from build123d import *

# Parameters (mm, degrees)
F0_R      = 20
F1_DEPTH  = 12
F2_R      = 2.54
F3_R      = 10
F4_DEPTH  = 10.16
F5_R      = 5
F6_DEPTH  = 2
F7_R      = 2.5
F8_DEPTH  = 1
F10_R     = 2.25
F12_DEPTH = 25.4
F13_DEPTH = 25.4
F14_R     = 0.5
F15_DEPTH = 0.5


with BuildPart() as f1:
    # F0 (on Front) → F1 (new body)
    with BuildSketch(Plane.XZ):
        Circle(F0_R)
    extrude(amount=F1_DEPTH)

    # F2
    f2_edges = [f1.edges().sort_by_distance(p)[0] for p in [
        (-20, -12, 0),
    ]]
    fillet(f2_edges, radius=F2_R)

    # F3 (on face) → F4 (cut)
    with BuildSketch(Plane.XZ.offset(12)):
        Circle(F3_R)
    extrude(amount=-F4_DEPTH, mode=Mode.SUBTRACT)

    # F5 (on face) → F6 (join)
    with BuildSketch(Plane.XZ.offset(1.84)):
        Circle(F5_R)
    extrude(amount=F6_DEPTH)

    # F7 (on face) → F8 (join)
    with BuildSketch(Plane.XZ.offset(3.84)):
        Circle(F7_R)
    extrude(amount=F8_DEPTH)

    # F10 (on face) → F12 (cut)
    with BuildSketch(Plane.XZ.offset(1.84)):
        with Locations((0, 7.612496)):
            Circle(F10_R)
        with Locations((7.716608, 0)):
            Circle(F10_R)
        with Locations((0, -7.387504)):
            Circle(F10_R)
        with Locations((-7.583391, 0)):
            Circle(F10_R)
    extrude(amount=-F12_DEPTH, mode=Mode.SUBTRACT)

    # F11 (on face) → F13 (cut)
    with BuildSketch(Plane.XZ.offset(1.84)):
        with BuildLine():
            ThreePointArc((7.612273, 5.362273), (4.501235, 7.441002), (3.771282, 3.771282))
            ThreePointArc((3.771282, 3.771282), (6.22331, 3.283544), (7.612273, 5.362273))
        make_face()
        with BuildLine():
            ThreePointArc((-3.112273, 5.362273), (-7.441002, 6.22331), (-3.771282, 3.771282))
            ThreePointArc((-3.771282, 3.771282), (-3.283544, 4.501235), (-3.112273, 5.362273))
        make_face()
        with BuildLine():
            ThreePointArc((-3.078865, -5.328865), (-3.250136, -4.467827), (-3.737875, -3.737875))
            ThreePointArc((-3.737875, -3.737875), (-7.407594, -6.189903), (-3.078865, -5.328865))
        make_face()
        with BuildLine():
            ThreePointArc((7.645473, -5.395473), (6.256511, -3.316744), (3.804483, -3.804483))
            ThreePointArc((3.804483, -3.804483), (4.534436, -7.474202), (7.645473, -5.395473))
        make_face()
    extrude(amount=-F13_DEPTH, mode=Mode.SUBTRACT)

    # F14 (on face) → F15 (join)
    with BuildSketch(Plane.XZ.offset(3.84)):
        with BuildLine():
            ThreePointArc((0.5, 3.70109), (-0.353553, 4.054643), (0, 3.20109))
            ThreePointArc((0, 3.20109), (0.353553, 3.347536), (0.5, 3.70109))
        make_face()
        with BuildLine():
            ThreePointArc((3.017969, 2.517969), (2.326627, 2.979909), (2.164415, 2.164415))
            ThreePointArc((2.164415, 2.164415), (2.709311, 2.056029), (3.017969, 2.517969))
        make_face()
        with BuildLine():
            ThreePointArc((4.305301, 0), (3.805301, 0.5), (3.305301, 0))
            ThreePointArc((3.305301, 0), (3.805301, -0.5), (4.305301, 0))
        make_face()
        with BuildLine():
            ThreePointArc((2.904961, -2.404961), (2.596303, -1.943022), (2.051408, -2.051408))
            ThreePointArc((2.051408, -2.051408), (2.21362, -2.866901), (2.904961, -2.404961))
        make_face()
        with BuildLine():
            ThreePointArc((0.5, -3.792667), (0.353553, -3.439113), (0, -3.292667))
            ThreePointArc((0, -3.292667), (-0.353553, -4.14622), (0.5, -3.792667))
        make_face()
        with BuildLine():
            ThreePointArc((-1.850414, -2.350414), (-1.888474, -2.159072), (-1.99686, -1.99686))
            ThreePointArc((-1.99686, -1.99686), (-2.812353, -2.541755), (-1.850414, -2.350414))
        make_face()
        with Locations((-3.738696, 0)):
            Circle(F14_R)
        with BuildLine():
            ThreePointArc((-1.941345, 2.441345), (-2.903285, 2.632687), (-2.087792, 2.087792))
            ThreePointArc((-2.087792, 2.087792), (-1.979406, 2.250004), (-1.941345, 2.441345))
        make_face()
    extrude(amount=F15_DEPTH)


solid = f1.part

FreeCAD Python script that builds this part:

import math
import FreeCAD as App
import Part
import Sketcher
from FreeCAD import Vector
Q = App.Units.Quantity


def edges_at(feature, points):
    """Names of the edges that pass closest to the given points."""
    edges = feature.Shape.Edges
    near = lambda p: min(range(len(edges)), key=lambda i: edges[i].distToShape(Part.Vertex(*p))[0])
    return sorted({f"Edge{near(p) + 1}" for p in points})

doc = App.newDocument("Part")
body = doc.addObject("PartDesign::Body", "Body")

# Sketch on XZ plane
sketch1 = body.newObject("Sketcher::SketchObject", "Sketch")
sketch1.AttachmentSupport = (doc.getObject("XZ_Plane"), [""])
sketch1.MapMode = "FlatFace"
sketch1.addGeometry(Part.Circle(Vector(0, 0, 0), Vector(0, 0, 1), 20), False)
sketch1.addConstraint([
    Sketcher.Constraint("Coincident", 0, 3, -1, 1),
    Sketcher.Constraint("Diameter", 0, Q("40 mm")),
])
pad1 = body.newObject("PartDesign::Pad", "Pad")
pad1.Profile = sketch1
pad1.Length = 12
doc.recompute()

fillet = body.newObject("PartDesign::Fillet", "Fillet")
fillet.Base = (pad1, edges_at(pad1, [(-20, -12, 0)]))
fillet.Radius = 2.54

# Sketch on XZ plane
sketch2 = body.newObject("Sketcher::SketchObject", "Sketch001")
sketch2.AttachmentSupport = (doc.getObject("XZ_Plane"), [""])
sketch2.MapMode = "FlatFace"
sketch2.AttachmentOffset = App.Placement(Vector(0, 0, 12), App.Rotation())
sketch2.addGeometry(Part.Circle(Vector(0, 0, 0), Vector(0, 0, 1), 10), False)
sketch2.addConstraint([
    Sketcher.Constraint("Coincident", 0, 3, -1, 1),
    Sketcher.Constraint("Diameter", 0, Q("20 mm")),
])
pocket1 = body.newObject("PartDesign::Pocket", "Pocket")
pocket1.Profile = sketch2
pocket1.Length = 10.16

# Sketch on XZ plane
sketch3 = body.newObject("Sketcher::SketchObject", "Sketch002")
sketch3.AttachmentSupport = (doc.getObject("XZ_Plane"), [""])
sketch3.MapMode = "FlatFace"
sketch3.AttachmentOffset = App.Placement(Vector(0, 0, 1.84), App.Rotation())
sketch3.addGeometry(Part.Circle(Vector(0, 0, 0), Vector(0, 0, 1), 5), False)
sketch3.addConstraint([
    Sketcher.Constraint("Coincident", 0, 3, -1, 1),
    Sketcher.Constraint("Diameter", 0, Q("10 mm")),
])
pad2 = body.newObject("PartDesign::Pad", "Pad001")
pad2.Profile = sketch3
pad2.Length = 2

# Sketch on XZ plane
sketch4 = body.newObject("Sketcher::SketchObject", "Sketch003")
sketch4.AttachmentSupport = (doc.getObject("XZ_Plane"), [""])
sketch4.MapMode = "FlatFace"
sketch4.AttachmentOffset = App.Placement(Vector(0, 0, 3.84), App.Rotation())
sketch4.addGeometry(Part.Circle(Vector(0, 0, 0), Vector(0, 0, 1), 2.5), False)
sketch4.addConstraint([
    Sketcher.Constraint("Coincident", 0, 3, -1, 1),
    Sketcher.Constraint("Diameter", 0, Q("5 mm")),
])
pad3 = body.newObject("PartDesign::Pad", "Pad002")
pad3.Profile = sketch4
pad3.Length = 1

# Sketch on XZ plane
sketch5 = body.newObject("Sketcher::SketchObject", "Sketch004")
sketch5.AttachmentSupport = (doc.getObject("XZ_Plane"), [""])
sketch5.MapMode = "FlatFace"
sketch5.AttachmentOffset = App.Placement(Vector(0, 0, 1.84), App.Rotation())
sketch5.addGeometry([
    Part.Circle(Vector(0, 7.6, 0), Vector(0, 0, 1), 2.2),
    Part.Circle(Vector(7.7, 0, 0), Vector(0, 0, 1), 2.2),
    Part.Circle(Vector(0, -7.4, 0), Vector(0, 0, 1), 2.2),
    Part.Circle(Vector(-7.6, 0, 0), Vector(0, 0, 1), 2.2),
], False)
sketch5.addConstraint([
    Sketcher.Constraint("Equal", 0, 1),
    Sketcher.Constraint("Equal", 1, 2),
    Sketcher.Constraint("Equal", 2, 3),
    Sketcher.Constraint("PointOnObject", 0, 3, -2),
    Sketcher.Constraint("PointOnObject", 1, 3, -1),
    Sketcher.Constraint("PointOnObject", 2, 3, -2),
    Sketcher.Constraint("PointOnObject", 3, 3, -1),
    Sketcher.Constraint("Diameter", 0, Q("4.5 mm")),
    Sketcher.Constraint("DistanceY", 2, 3, 0, 3, Q("15 mm")),
    Sketcher.Constraint("DistanceX", 3, 3, 1, 3, Q("15.299999 mm")),
    Sketcher.Constraint("DistanceX", 3, 3, -1, 1, Q("7.583391 mm")),
    Sketcher.Constraint("DistanceY", -1, 1, 0, 3, Q("7.612496 mm")),
])
pocket2 = body.newObject("PartDesign::Pocket", "Pocket001")
pocket2.Profile = sketch5
pocket2.Length = 25.4

# Sketch on XZ plane
sketch6 = body.newObject("Sketcher::SketchObject", "Sketch005")
sketch6.AttachmentSupport = (doc.getObject("XZ_Plane"), [""])
sketch6.MapMode = "FlatFace"
sketch6.AttachmentOffset = App.Placement(Vector(0, 0, 1.84), App.Rotation())
sketch6.addGeometry([
    Part.ArcOfCircle(Part.Circle(Vector(5.4, 5.4, 0), Vector(0, 0, 1), 2.3), math.radians(0), math.radians(225)),  # 0
    Part.ArcOfCircle(Part.Circle(Vector(5.4, 5.4, 0), Vector(0, 0, 1), 2.3), math.radians(-135), math.radians(0)),  # 1
    Part.ArcOfCircle(Part.Circle(Vector(-5.4, 5.4, 0), Vector(0, 0, 1), 2.3), math.radians(0), math.radians(315)),  # 2
    Part.ArcOfCircle(Part.Circle(Vector(-5.4, 5.4, 0), Vector(0, 0, 1), 2.3), math.radians(-45), math.radians(0)),  # 3
    Part.ArcOfCircle(Part.Circle(Vector(-5.3, -5.3, 0), Vector(0, 0, 1), 2.2), math.radians(0), math.radians(45)),  # 4
    Part.ArcOfCircle(Part.Circle(Vector(-5.3, -5.3, 0), Vector(0, 0, 1), 2.2), math.radians(45), math.radians(360)),  # 5
    Part.ArcOfCircle(Part.Circle(Vector(5.4, -5.4, 0), Vector(0, 0, 1), 2.2), math.radians(0), math.radians(135)),  # 6
    Part.ArcOfCircle(Part.Circle(Vector(5.4, -5.4, 0), Vector(0, 0, 1), 2.2), math.radians(135), math.radians(360)),  # 7
], False)
sketch6.addConstraint([
    Sketcher.Constraint("Tangent", 0, 1, 1, 2),
    Sketcher.Constraint("Coincident", 1, 1, 0, 2),
    Sketcher.Constraint("Tangent", 2, 1, 3, 2),
    Sketcher.Constraint("Coincident", 3, 1, 2, 2),
    Sketcher.Constraint("Tangent", 4, 1, 5, 2),
    Sketcher.Constraint("Coincident", 5, 1, 4, 2),
    Sketcher.Constraint("Tangent", 6, 1, 7, 2),
    Sketcher.Constraint("Coincident", 7, 1, 6, 2),
    Sketcher.Constraint("Equal", 1, 2),
    Sketcher.Constraint("Equal", 2, 5),
    Sketcher.Constraint("Equal", 5, 6),
    Sketcher.Constraint("Symmetric", 0, 3, 2, 3, -2),
    Sketcher.Constraint("Horizontal", 3, 3, 0, 1),
    Sketcher.Constraint("Horizontal", 0, 1, 2, 1),
    Sketcher.Constraint("Horizontal", 1, 1, 3, 1),
    Sketcher.Constraint("Horizontal", 5, 3, 4, 1),
    Sketcher.Constraint("Horizontal", 7, 3, 6, 1),
    Sketcher.Constraint("Radius", 0, Q("2.25 mm")),
    Sketcher.Constraint("DistanceX", 0, 3, 6, 3, Q("0.033201 mm")),
    Sketcher.Constraint("DistanceY", -1, 1, 2, 3, Q("5.362272 mm")),
    Sketcher.Constraint("DistanceX", 3, 3, -1, 1, Q("5.362278 mm")),
    Sketcher.Constraint("DistanceX", 4, 3, -1, 1, Q("5.328861 mm")),
    Sketcher.Constraint("DistanceX", -1, 1, 1, 1, Q("3.771282 mm")),
    Sketcher.Constraint("DistanceY", 5, 3, 3, 3, Q("10.691139 mm")),
    Sketcher.Constraint("DistanceY", 6, 3, 4, 3, Q("0.066609 mm")),
    Sketcher.Constraint("DistanceX", 5, 1, 4, 1, Q("0.65901 mm")),
    Sketcher.Constraint("DistanceX", 7, 1, 6, 3, Q("1.59099 mm")),
])
pocket3 = body.newObject("PartDesign::Pocket", "Pocket002")
pocket3.Profile = sketch6
pocket3.Length = 25.4

# Sketch on XZ plane
sketch7 = body.newObject("Sketcher::SketchObject", "Sketch006")
sketch7.AttachmentSupport = (doc.getObject("XZ_Plane"), [""])
sketch7.MapMode = "FlatFace"
sketch7.AttachmentOffset = App.Placement(Vector(0, 0, 3.84), App.Rotation())
sketch7.addGeometry([
    Part.ArcOfCircle(Part.Circle(Vector(0, 3.7, 0), Vector(0, 0, 1), 0.5), math.radians(0), math.radians(270)),  # 0
    Part.ArcOfCircle(Part.Circle(Vector(0, 3.7, 0), Vector(0, 0, 1), 0.5), math.radians(-90), math.radians(0)),  # 1
    Part.ArcOfCircle(Part.Circle(Vector(2.52, 2.52, 0), Vector(0, 0, 1), 0.5), math.radians(0), math.radians(225)),  # 2
    Part.ArcOfCircle(Part.Circle(Vector(2.52, 2.52, 0), Vector(0, 0, 1), 0.5), math.radians(-135), math.radians(0)),  # 3
    Part.Circle(Vector(3.81, 0, 0), Vector(0, 0, 1), 0.5),  # 4
    Part.ArcOfCircle(Part.Circle(Vector(2.4, -2.4, 0), Vector(0, 0, 1), 0.5), math.radians(0), math.radians(135)),  # 5
    Part.ArcOfCircle(Part.Circle(Vector(2.4, -2.4, 0), Vector(0, 0, 1), 0.5), math.radians(135), math.radians(360)),  # 6
    Part.ArcOfCircle(Part.Circle(Vector(0, -3.79, 0), Vector(0, 0, 1), 0.5), math.radians(0), math.radians(90)),  # 7
    Part.ArcOfCircle(Part.Circle(Vector(0, -3.79, 0), Vector(0, 0, 1), 0.5), math.radians(90), math.radians(360)),  # 8
    Part.ArcOfCircle(Part.Circle(Vector(-2.35, -2.35, 0), Vector(0, 0, 1), 0.5), math.radians(0), math.radians(45)),  # 9
    Part.ArcOfCircle(Part.Circle(Vector(-2.35, -2.35, 0), Vector(0, 0, 1), 0.5), math.radians(45), math.radians(360)),  # 10
    Part.Circle(Vector(-3.74, 0, 0), Vector(0, 0, 1), 0.5),  # 11
    Part.ArcOfCircle(Part.Circle(Vector(-2.44, 2.44, 0), Vector(0, 0, 1), 0.5), math.radians(0), math.radians(315)),  # 12
    Part.ArcOfCircle(Part.Circle(Vector(-2.44, 2.44, 0), Vector(0, 0, 1), 0.5), math.radians(-45), math.radians(0)),  # 13
], False)
sketch7.addConstraint([
    Sketcher.Constraint("Tangent", 0, 1, 1, 2),
    Sketcher.Constraint("Coincident", 1, 1, 0, 2),
    Sketcher.Constraint("Tangent", 2, 1, 3, 2),
    Sketcher.Constraint("Coincident", 3, 1, 2, 2),
    Sketcher.Constraint("Tangent", 5, 1, 6, 2),
    Sketcher.Constraint("Coincident", 6, 1, 5, 2),
    Sketcher.Constraint("Tangent", 7, 1, 8, 2),
    Sketcher.Constraint("Coincident", 8, 1, 7, 2),
    Sketcher.Constraint("Tangent", 9, 1, 10, 2),
    Sketcher.Constraint("Coincident", 10, 1, 9, 2),
    Sketcher.Constraint("Coincident", 12, 1, 13, 2),
    Sketcher.Constraint("Coincident", 13, 1, 12, 2),
    Sketcher.Constraint("Equal", 1, 2),
    Sketcher.Constraint("Equal", 3, 4),
    Sketcher.Constraint("Equal", 4, 5),
    Sketcher.Constraint("Equal", 6, 7),
    Sketcher.Constraint("Equal", 8, 9),
    Sketcher.Constraint("Equal", 10, 11),
    Sketcher.Constraint("Equal", 11, 12),
    Sketcher.Constraint("PointOnObject", 0, 3, -2),
    Sketcher.Constraint("PointOnObject", 4, 3, -1),
    Sketcher.Constraint("PointOnObject", 7, 3, -2),
    Sketcher.Constraint("PointOnObject", 11, 3, -1),
    Sketcher.Constraint("PointOnObject", 1, 1, -2),
    Sketcher.Constraint("PointOnObject", 8, 1, -2),
    Sketcher.Constraint("Horizontal", 1, 3, 0, 1),
    Sketcher.Constraint("Horizontal", 3, 3, 2, 1),
    Sketcher.Constraint("Horizontal", 6, 3, 5, 1),
    Sketcher.Constraint("Horizontal", 8, 3, 7, 1),
    Sketcher.Constraint("Horizontal", 10, 3, 9, 1),
    Sketcher.Constraint("Diameter", 4, Q("1 mm")),
    Sketcher.Constraint("Radius", 13, Q("0.500008 mm")),
    Sketcher.Constraint("DistanceX", -1, 1, 4, 3, Q("3.805301 mm")),
    Sketcher.Constraint("DistanceY", 13, 1, 1, 1, Q("1.113298 mm")),
    Sketcher.Constraint("DistanceY", -1, 1, 0, 3, Q("3.70109 mm")),
    Sketcher.Constraint("DistanceX", -1, 1, 2, 3, Q("2.517969 mm")),
    Sketcher.Constraint("DistanceY", -1, 1, 2, 3, Q("2.517969 mm")),
    Sketcher.Constraint("DistanceX", -1, 1, 5, 3, Q("2.404961 mm")),
    Sketcher.Constraint("DistanceY", 5, 3, -1, 1, Q("2.404962 mm")),
    Sketcher.Constraint("DistanceY", -1, 1, 13, 3, Q("2.441349 mm")),
    Sketcher.Constraint("DistanceX", -1, 1, 6, 1, Q("2.051408 mm")),
    Sketcher.Constraint("DistanceX", 10, 1, -1, 1, Q("1.99686 mm")),
    Sketcher.Constraint("DistanceY", 10, 1, -1, 1, Q("1.99686 mm")),
    Sketcher.Constraint("DistanceX", 13, 1, -1, 1, Q("2.087792 mm")),
    Sketcher.Constraint("DistanceY", 5, 3, 9, 3, Q("0.054548 mm")),
    Sketcher.Constraint("DistanceX", 11, 3, 9, 3, Q("1.38828 mm")),
    Sketcher.Constraint("DistanceY", 7, 3, 6, 1, Q("1.741259 mm")),
    Sketcher.Constraint("DistanceX", -1, 1, 3, 1, Q("2.164415 mm")),
    Sketcher.Constraint("DistanceY", -1, 1, 12, 1, Q("2.441345 mm")),
])
pad4 = body.newObject("PartDesign::Pad", "Pad003")
pad4.Profile = sketch7
pad4.Length = 0.5

doc.recompute()
